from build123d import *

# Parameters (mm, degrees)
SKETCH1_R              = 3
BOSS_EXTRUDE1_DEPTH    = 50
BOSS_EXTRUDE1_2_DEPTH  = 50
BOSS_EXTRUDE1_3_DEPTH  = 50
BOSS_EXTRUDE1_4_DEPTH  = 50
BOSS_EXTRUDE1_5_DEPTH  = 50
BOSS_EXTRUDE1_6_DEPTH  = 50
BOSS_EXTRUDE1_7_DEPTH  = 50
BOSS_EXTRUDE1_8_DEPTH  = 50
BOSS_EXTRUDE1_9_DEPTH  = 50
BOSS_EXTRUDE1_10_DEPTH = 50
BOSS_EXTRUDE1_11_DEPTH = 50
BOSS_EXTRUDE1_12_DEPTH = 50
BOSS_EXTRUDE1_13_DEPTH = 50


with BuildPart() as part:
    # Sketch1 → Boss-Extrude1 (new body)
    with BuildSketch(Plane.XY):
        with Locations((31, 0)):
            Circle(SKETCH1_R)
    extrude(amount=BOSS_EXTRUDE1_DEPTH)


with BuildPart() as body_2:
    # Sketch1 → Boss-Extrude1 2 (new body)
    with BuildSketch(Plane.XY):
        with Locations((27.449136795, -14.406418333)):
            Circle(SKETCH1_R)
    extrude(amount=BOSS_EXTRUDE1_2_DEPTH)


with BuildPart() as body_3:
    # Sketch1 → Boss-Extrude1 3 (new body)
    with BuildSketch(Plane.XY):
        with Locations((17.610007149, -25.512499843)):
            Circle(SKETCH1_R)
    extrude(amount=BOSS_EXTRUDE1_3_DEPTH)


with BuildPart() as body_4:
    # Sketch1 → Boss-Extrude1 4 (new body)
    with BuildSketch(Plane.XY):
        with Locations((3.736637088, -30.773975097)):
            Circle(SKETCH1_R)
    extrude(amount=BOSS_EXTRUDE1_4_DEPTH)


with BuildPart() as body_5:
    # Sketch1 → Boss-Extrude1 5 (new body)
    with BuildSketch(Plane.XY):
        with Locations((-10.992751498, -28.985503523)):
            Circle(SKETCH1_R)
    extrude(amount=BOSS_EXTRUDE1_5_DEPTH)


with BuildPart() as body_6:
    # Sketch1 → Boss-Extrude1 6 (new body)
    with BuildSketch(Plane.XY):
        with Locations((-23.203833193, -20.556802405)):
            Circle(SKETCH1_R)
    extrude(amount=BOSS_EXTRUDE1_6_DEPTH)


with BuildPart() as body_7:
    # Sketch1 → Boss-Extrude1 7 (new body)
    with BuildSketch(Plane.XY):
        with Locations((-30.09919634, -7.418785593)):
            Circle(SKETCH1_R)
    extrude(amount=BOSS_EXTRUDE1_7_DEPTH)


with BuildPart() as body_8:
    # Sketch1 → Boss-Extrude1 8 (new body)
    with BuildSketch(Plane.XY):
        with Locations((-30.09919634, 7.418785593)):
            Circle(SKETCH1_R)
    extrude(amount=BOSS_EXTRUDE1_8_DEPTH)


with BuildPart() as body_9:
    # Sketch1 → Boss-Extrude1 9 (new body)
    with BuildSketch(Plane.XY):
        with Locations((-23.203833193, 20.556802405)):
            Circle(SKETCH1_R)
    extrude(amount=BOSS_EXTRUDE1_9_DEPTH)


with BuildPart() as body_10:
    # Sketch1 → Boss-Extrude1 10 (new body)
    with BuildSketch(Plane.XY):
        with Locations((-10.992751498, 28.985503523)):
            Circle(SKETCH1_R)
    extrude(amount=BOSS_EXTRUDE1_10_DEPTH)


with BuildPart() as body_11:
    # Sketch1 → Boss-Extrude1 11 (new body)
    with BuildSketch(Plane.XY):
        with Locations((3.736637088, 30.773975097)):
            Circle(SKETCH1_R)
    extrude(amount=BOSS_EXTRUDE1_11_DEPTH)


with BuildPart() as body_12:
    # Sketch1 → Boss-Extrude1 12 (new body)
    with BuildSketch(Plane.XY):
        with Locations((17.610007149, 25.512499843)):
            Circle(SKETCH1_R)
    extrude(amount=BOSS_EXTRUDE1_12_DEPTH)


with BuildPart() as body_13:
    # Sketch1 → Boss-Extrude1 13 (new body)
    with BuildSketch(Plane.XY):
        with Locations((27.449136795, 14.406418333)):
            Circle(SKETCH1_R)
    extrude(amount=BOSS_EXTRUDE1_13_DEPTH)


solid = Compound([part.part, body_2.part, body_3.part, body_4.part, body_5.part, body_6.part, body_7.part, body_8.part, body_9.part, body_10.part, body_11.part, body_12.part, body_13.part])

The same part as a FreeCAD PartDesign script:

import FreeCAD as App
import Part
import Sketcher
Q = App.Units.Quantity

doc = App.newDocument("Part")
params = doc.addObject("Spreadsheet::Sheet", "Params")
for row, (alias, value) in enumerate([
    ("sketch1_diameter", "6 mm"),
    ("pad1_length", "50 mm"),
    ("sketch2_diameter", "6 mm"),
    ("pad2_length", "50 mm"),
    ("sketch3_diameter", "6 mm"),
    ("pad3_length", "50 mm"),
    ("sketch4_diameter", "6 mm"),
    ("pad4_length", "50 mm"),
    ("sketch5_diameter", "6 mm"),
    ("pad5_length", "50 mm"),
    ("sketch6_diameter", "6 mm"),
    ("pad6_length", "50 mm"),
    ("sketch7_diameter", "6 mm"),
    ("pad7_length", "50 mm"),
    ("sketch8_diameter", "6 mm"),
    ("pad8_length", "50 mm"),
    ("sketch9_diameter", "6 mm"),
    ("pad9_length", "50 mm"),
    ("sketch10_diameter", "6 mm"),
    ("pad10_length", "50 mm"),
    ("sketch11_diameter", "6 mm"),
    ("pad11_length", "50 mm"),
    ("sketch12_diameter", "6 mm"),
    ("pad12_length", "50 mm"),
    ("sketch13_diameter", "6 mm"),
    ("pad13_length", "50 mm"),
], start=1):
    params.set(f"A{row}", alias)
    params.set(f"B{row}", "=" + value)
    params.setAlias(f"B{row}", alias)

body = doc.addObject("PartDesign::Body", "Body")

# Sketch on XY plane
sketch1 = doc.addObject("Sketcher::SketchObject", "Sketch")
body.addObject(sketch1)
sketch1.AttachmentSupport = (doc.XY_Plane, [""])
sketch1.MapMode = "FlatFace"
sketch1.addGeometry(Part.Circle(App.Vector(31, 0, 0), App.Vector(0, 0, 1), 3), False)
sketch1.addConstraint([
    Sketcher.Constraint("PointOnObject", 0, 3, -1),
    Sketcher.Constraint("Diameter", 0, Q("6 mm")),
    Sketcher.Constraint("DistanceX", -1, 1, 0, 3, Q("31 mm")),
])
sketch1.setExpression("Constraints[1]", "Params.sketch1_diameter")
pad1 = doc.addObject("PartDesign::Pad", "Pad")
body.addObject(pad1)
pad1.Profile = sketch1
pad1.setExpression("Length", "Params.pad1_length")
body2 = doc.addObject("PartDesign::Body", "Body001")

# Sketch on XY plane
sketch2 = doc.addObject("Sketcher::SketchObject", "Sketch001")
body2.addObject(sketch2)
sketch2.AttachmentSupport = (doc.getObject("XY_Plane001"), [""])
sketch2.MapMode = "FlatFace"
sketch2.addGeometry(Part.Circle(App.Vector(27.4, -14.4, 0), App.Vector(0, 0, 1), 3), False)
sketch2.addConstraint([
    Sketcher.Constraint("Diameter", 0, Q("6 mm")),
    Sketcher.Constraint("DistanceY", 0, 3, -1, 1, Q("14.406418 mm")),
    Sketcher.Constraint("DistanceX", -1, 1, 0, 3, Q("27.449137 mm")),
])
sketch2.setExpression("Constraints[0]", "Params.sketch2_diameter")
pad2 = doc.addObject("PartDesign::Pad", "Pad001")
body2.addObject(pad2)
pad2.Profile = sketch2
pad2.setExpression("Length", "Params.pad2_length")
body3 = doc.addObject("PartDesign::Body", "Body002")

# Sketch on XY plane
sketch3 = doc.addObject("Sketcher::SketchObject", "Sketch002")
body3.addObject(sketch3)
sketch3.AttachmentSupport = (doc.getObject("XY_Plane002"), [""])
sketch3.MapMode = "FlatFace"
sketch3.addGeometry(Part.Circle(App.Vector(17.6, -25.5, 0), App.Vector(0, 0, 1), 3), False)
sketch3.addConstraint([
    Sketcher.Constraint("Diameter", 0, Q("6 mm")),
    Sketcher.Constraint("DistanceY", 0, 3, -1, 1, Q("25.5125 mm")),
    Sketcher.Constraint("DistanceX", -1, 1, 0, 3, Q("17.610007 mm")),
])
sketch3.setExpression("Constraints[0]", "Params.sketch3_diameter")
pad3 = doc.addObject("PartDesign::Pad", "Pad002")
body3.addObject(pad3)
pad3.Profile = sketch3
pad3.setExpression("Length", "Params.pad3_length")
body4 = doc.addObject("PartDesign::Body", "Body003")

# Sketch on XY plane
sketch4 = doc.addObject("Sketcher::SketchObject", "Sketch003")
body4.addObject(sketch4)
sketch4.AttachmentSupport = (doc.getObject("XY_Plane003"), [""])
sketch4.MapMode = "FlatFace"
sketch4.addGeometry(Part.Circle(App.Vector(3.7, -30.8, 0), App.Vector(0, 0, 1), 3), False)
sketch4.addConstraint([
    Sketcher.Constraint("Diameter", 0, Q("6 mm")),
    Sketcher.Constraint("DistanceX", -1, 1, 0, 3, Q("3.736637 mm")),
    Sketcher.Constraint("DistanceY", 0, 3, -1, 1, Q("30.773975 mm")),
])
sketch4.setExpression("Constraints[0]", "Params.sketch4_diameter")
pad4 = doc.addObject("PartDesign::Pad", "Pad003")
body4.addObject(pad4)
pad4.Profile = sketch4
pad4.setExpression("Length", "Params.pad4_length")
body5 = doc.addObject("PartDesign::Body", "Body004")

# Sketch on XY plane
sketch5 = doc.addObject("Sketcher::SketchObject", "Sketch004")
body5.addObject(sketch5)
sketch5.AttachmentSupport = (doc.getObject("XY_Plane004"), [""])
sketch5.MapMode = "FlatFace"
sketch5.addGeometry(Part.Circle(App.Vector(-11, -29, 0), App.Vector(0, 0, 1), 3), False)
sketch5.addConstraint([
    Sketcher.Constraint("Diameter", 0, Q("6 mm")),
    Sketcher.Constraint("DistanceX", 0, 3, -1, 1, Q("10.992751 mm")),
    Sketcher.Constraint("DistanceY", 0, 3, -1, 1, Q("28.985504 mm")),
])
sketch5.setExpression("Constraints[0]", "Params.sketch5_diameter")
pad5 = doc.addObject("PartDesign::Pad", "Pad004")
body5.addObject(pad5)
pad5.Profile = sketch5
pad5.setExpression("Length", "Params.pad5_length")
body6 = doc.addObject("PartDesign::Body", "Body005")

# Sketch on XY plane
sketch6 = doc.addObject("Sketcher::SketchObject", "Sketch005")
body6.addObject(sketch6)
sketch6.AttachmentSupport = (doc.getObject("XY_Plane005"), [""])
sketch6.MapMode = "FlatFace"
sketch6.addGeometry(Part.Circle(App.Vector(-23.2, -20.6, 0), App.Vector(0, 0, 1), 3), False)
sketch6.addConstraint([
    Sketcher.Constraint("Diameter", 0, Q("6 mm")),
    Sketcher.Constraint("DistanceX", 0, 3, -1, 1, Q("23.203833 mm")),
    Sketcher.Constraint("DistanceY", 0, 3, -1, 1, Q("20.556802 mm")),
])
sketch6.setExpression("Constraints[0]", "Params.sketch6_diameter")
pad6 = doc.addObject("PartDesign::Pad", "Pad005")
body6.addObject(pad6)
pad6.Profile = sketch6
pad6.setExpression("Length", "Params.pad6_length")
body7 = doc.addObject("PartDesign::Body", "Body006")

# Sketch on XY plane
sketch7 = doc.addObject("Sketcher::SketchObject", "Sketch006")
body7.addObject(sketch7)
sketch7.AttachmentSupport = (doc.getObject("XY_Plane006"), [""])
sketch7.MapMode = "FlatFace"
sketch7.addGeometry(Part.Circle(App.Vector(-30.1, -7.4, 0), App.Vector(0, 0, 1), 3), False)
sketch7.addConstraint([
    Sketcher.Constraint("Diameter", 0, Q("6 mm")),
    Sketcher.Constraint("DistanceX", 0, 3, -1, 1, Q("30.099196 mm")),
    Sketcher.Constraint("DistanceY", 0, 3, -1, 1, Q("7.418786 mm")),
])
sketch7.setExpression("Constraints[0]", "Params.sketch7_diameter")
pad7 = doc.addObject("PartDesign::Pad", "Pad006")
body7.addObject(pad7)
pad7.Profile = sketch7
pad7.setExpression("Length", "Params.pad7_length")
body8 = doc.addObject("PartDesign::Body", "Body007")

# Sketch on XY plane
sketch8 = doc.addObject("Sketcher::SketchObject", "Sketch007")
body8.addObject(sketch8)
sketch8.AttachmentSupport = (doc.getObject("XY_Plane007"), [""])
sketch8.MapMode = "FlatFace"
sketch8.addGeometry(Part.Circle(App.Vector(-30.1, 7.4, 0), App.Vector(0, 0, 1), 3), False)
sketch8.addConstraint([
    Sketcher.Constraint("Diameter", 0, Q("6 mm")),
    Sketcher.Constraint("DistanceX", 0, 3, -1, 1, Q("30.099196 mm")),
    Sketcher.Constraint("DistanceY", -1, 1, 0, 3, Q("7.418786 mm")),
])
sketch8.setExpression("Constraints[0]", "Params.sketch8_diameter")
pad8 = doc.addObject("PartDesign::Pad", "Pad007")
body8.addObject(pad8)
pad8.Profile = sketch8
pad8.setExpression("Length", "Params.pad8_length")
body9 = doc.addObject("PartDesign::Body", "Body008")

# Sketch on XY plane
sketch9 = doc.addObject("Sketcher::SketchObject", "Sketch008")
body9.addObject(sketch9)
sketch9.AttachmentSupport = (doc.getObject("XY_Plane008"), [""])
sketch9.MapMode = "FlatFace"
sketch9.addGeometry(Part.Circle(App.Vector(-23.2, 20.6, 0), App.Vector(0, 0, 1), 3), False)
sketch9.addConstraint([
    Sketcher.Constraint("Diameter", 0, Q("6 mm")),
    Sketcher.Constraint("DistanceX", 0, 3, -1, 1, Q("23.203833 mm")),
    Sketcher.Constraint("DistanceY", -1, 1, 0, 3, Q("20.556802 mm")),
])
sketch9.setExpression("Constraints[0]", "Params.sketch9_diameter")
pad9 = doc.addObject("PartDesign::Pad", "Pad008")
body9.addObject(pad9)
pad9.Profile = sketch9
pad9.setExpression("Length", "Params.pad9_length")
body10 = doc.addObject("PartDesign::Body", "Body009")

# Sketch on XY plane
sketch10 = doc.addObject("Sketcher::SketchObject", "Sketch009")
body10.addObject(sketch10)
sketch10.AttachmentSupport = (doc.getObject("XY_Plane009"), [""])
sketch10.MapMode = "FlatFace"
sketch10.addGeometry(Part.Circle(App.Vector(-11, 29, 0), App.Vector(0, 0, 1), 3), False)
sketch10.addConstraint([
    Sketcher.Constraint("Diameter", 0, Q("6 mm")),
    Sketcher.Constraint("DistanceX", 0, 3, -1, 1, Q("10.992751 mm")),
    Sketcher.Constraint("DistanceY", -1, 1, 0, 3, Q("28.985504 mm")),
])
sketch10.setExpression("Constraints[0]", "Params.sketch10_diameter")
pad10 = doc.addObject("PartDesign::Pad", "Pad009")
body10.addObject(pad10)
pad10.Profile = sketch10
pad10.setExpression("Length", "Params.pad10_length")
body11 = doc.addObject("PartDesign::Body", "Body010")

# Sketch on XY plane
sketch11 = doc.addObject("Sketcher::SketchObject", "Sketch010")
body11.addObject(sketch11)
sketch11.AttachmentSupport = (doc.getObject("XY_Plane010"), [""])
sketch11.MapMode = "FlatFace"
sketch11.addGeometry(Part.Circle(App.Vector(3.7, 30.8, 0), App.Vector(0, 0, 1), 3), False)
sketch11.addConstraint([
    Sketcher.Constraint("Diameter", 0, Q("6 mm")),
    Sketcher.Constraint("DistanceX", -1, 1, 0, 3, Q("3.736637 mm")),
    Sketcher.Constraint("DistanceY", -1, 1, 0, 3, Q("30.773975 mm")),
])
sketch11.setExpression("Constraints[0]", "Params.sketch11_diameter")
pad11 = doc.addObject("PartDesign::Pad", "Pad010")
body11.addObject(pad11)
pad11.Profile = sketch11
pad11.setExpression("Length", "Params.pad11_length")
body12 = doc.addObject("PartDesign::Body", "Body011")

# Sketch on XY plane
sketch12 = doc.addObject("Sketcher::SketchObject", "Sketch011")
body12.addObject(sketch12)
sketch12.AttachmentSupport = (doc.getObject("XY_Plane011"), [""])
sketch12.MapMode = "FlatFace"
sketch12.addGeometry(Part.Circle(App.Vector(17.6, 25.5, 0), App.Vector(0, 0, 1), 3), False)
sketch12.addConstraint([
    Sketcher.Constraint("Diameter", 0, Q("6 mm")),
    Sketcher.Constraint("DistanceY", -1, 1, 0, 3, Q("25.5125 mm")),
    Sketcher.Constraint("DistanceX", -1, 1, 0, 3, Q("17.610007 mm")),
])
sketch12.setExpression("Constraints[0]", "Params.sketch12_diameter")
pad12 = doc.addObject("PartDesign::Pad", "Pad011")
body12.addObject(pad12)
pad12.Profile = sketch12
pad12.setExpression("Length", "Params.pad12_length")
body13 = doc.addObject("PartDesign::Body", "Body012")

# Sketch on XY plane
sketch13 = doc.addObject("Sketcher::SketchObject", "Sketch012")
body13.addObject(sketch13)
sketch13.AttachmentSupport = (doc.getObject("XY_Plane012"), [""])
sketch13.MapMode = "FlatFace"
sketch13.addGeometry(Part.Circle(App.Vector(27.4, 14.4, 0), App.Vector(0, 0, 1), 3), False)
sketch13.addConstraint([
    Sketcher.Constraint("Diameter", 0, Q("6 mm")),
    Sketcher.Constraint("DistanceY", -1, 1, 0, 3, Q("14.406418 mm")),
    Sketcher.Constraint("DistanceX", -1, 1, 0, 3, Q("27.449137 mm")),
])
sketch13.setExpression("Constraints[0]", "Params.sketch13_diameter")
pad13 = doc.addObject("PartDesign::Pad", "Pad012")
body13.addObject(pad13)
pad13.Profile = sketch13
pad13.setExpression("Length", "Params.pad13_length")

doc.recompute()
